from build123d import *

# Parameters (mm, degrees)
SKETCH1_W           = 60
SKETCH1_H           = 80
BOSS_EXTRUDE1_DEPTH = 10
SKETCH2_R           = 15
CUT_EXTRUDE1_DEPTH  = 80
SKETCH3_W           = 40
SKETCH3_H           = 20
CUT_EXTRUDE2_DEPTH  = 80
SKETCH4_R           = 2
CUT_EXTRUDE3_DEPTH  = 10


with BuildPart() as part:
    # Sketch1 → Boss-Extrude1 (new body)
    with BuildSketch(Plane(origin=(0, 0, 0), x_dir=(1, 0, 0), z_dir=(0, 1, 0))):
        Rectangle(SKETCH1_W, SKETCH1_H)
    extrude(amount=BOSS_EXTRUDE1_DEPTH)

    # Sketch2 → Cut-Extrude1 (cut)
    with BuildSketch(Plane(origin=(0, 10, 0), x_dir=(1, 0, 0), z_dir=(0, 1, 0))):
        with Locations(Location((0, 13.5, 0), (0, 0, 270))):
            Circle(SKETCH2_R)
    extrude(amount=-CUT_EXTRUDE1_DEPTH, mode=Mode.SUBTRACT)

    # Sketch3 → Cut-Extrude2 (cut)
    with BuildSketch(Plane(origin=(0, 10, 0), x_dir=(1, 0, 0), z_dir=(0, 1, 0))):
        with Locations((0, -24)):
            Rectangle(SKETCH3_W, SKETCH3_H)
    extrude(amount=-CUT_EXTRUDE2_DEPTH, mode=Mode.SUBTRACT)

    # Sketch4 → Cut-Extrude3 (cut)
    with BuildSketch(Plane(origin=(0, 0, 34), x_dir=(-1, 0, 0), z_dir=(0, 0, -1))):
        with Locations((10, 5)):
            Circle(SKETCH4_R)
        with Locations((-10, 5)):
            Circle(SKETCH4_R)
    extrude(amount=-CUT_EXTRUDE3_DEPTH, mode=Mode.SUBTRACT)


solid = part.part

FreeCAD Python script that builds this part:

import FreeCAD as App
import Part
import Sketcher

V = App.Vector


def add_polygon(sketch, points):
    """Adds a closed chain of lines whose ends are joined by coincident constraints."""
    first, n = sketch.GeometryCount, len(points)
    for a, b in zip(points, points[1:] + points[:1]):
        sketch.addGeometry(Part.LineSegment(App.Vector(*a, 0), App.Vector(*b, 0)), False)
    for i in range(n):
        sketch.addConstraint(Sketcher.Constraint("Coincident", first + i, 2, first + (i + 1) % n, 1))

doc = App.newDocument("Part")
body = doc.addObject("PartDesign::Body", "Body")

sketch1 = body.newObject("Sketcher::SketchObject", "Sketch")
sketch1.AttachmentSupport = (doc.getObject("XZ_Plane"), [""])
sketch1.MapMode = "FlatFace"
add_polygon(sketch1, [(-30, -40), (-30, 40), (30, 40), (30, -40)])
sketch1.addConstraint(Sketcher.Constraint("Vertical", 0))
sketch1.addConstraint(Sketcher.Constraint("Horizontal", 1))
sketch1.addConstraint(Sketcher.Constraint("Vertical", 2))
sketch1.addConstraint(Sketcher.Constraint("Horizontal", 3))
sketch1.addConstraint(Sketcher.Constraint("Symmetric", 0, 2, 2, 2, -1, 1))
sketch1.addConstraint(Sketcher.Constraint("DistanceX", 1, 1, 1, 2, 60.0))
sketch1.addConstraint(Sketcher.Constraint("DistanceY", 0, 1, 0, 2, 80.0))
pad1 = body.newObject("PartDesign::Pad", "Pad")
pad1.Profile = sketch1
pad1.Length = 10
pad1.Reversed = True

sketch2 = body.newObject("Sketcher::SketchObject", "Sketch001")
sketch2.AttachmentSupport = (doc.getObject("XZ_Plane"), [""])
sketch2.MapMode = "FlatFace"
sketch2.AttachmentOffset = App.Placement(V(0, 0, -10), App.Rotation())
sketch2.addGeometry(Part.Circle(V(0, -14, 0), V(0, 0, 1), 15), False)
sketch2.addConstraint(Sketcher.Constraint("PointOnObject", 0, 3, -2))
sketch2.addConstraint(Sketcher.Constraint("Diameter", 0, 30.0))
sketch2.addConstraint(Sketcher.Constraint("DistanceY", 0, 3, -1, 1, 13.5))
pocket1 = body.newObject("PartDesign::Pocket", "Pocket")
pocket1.Profile = sketch2
pocket1.Length = 80
pocket1.Reversed = True

sketch3 = body.newObject("Sketcher::SketchObject", "Sketch002")
sketch3.AttachmentSupport = (doc.getObject("XZ_Plane"), [""])
sketch3.MapMode = "FlatFace"
sketch3.AttachmentOffset = App.Placement(V(0, 0, -10), App.Rotation())
add_polygon(sketch3, [(-20, 14), (-20, 34), (20, 34), (20, 14)])
sketch3.addConstraint(Sketcher.Constraint("Vertical", 0))
sketch3.addConstraint(Sketcher.Constraint("Horizontal", 1))
sketch3.addConstraint(Sketcher.Constraint("Vertical", 2))
sketch3.addConstraint(Sketcher.Constraint("Horizontal", 3))
sketch3.addConstraint(Sketcher.Constraint("DistanceX", 1, 1, 1, 2, 40.0))
sketch3.addConstraint(Sketcher.Constraint("DistanceY", 0, 1, 0, 2, 20.0))
sketch3.addConstraint(Sketcher.Constraint("DistanceX", 0, 2, -1, 1, 20.0))
sketch3.addConstraint(Sketcher.Constraint("DistanceY", -1, 1, 0, 2, 34.0))
pocket2 = body.newObject("PartDesign::Pocket", "Pocket001")
pocket2.Profile = sketch3
pocket2.Length = 80
pocket2.Reversed = True

sketch4 = body.newObject("Sketcher::SketchObject", "Sketch003")
sketch4.AttachmentSupport = (doc.getObject("XY_Plane"), [""])
sketch4.MapMode = "FlatFace"
sketch4.AttachmentOffset = App.Placement(V(0, 0, 34), App.Rotation())
sketch4.addGeometry(Part.Circle(V(-10, 5, 0), V(0, 0, 1), 2), False)
sketch4.addGeometry(Part.Circle(V(10, 5, 0), V(0, 0, 1), 2), False)
sketch4.addConstraint(Sketcher.Constraint("Equal", 0, 1))
sketch4.addConstraint(Sketcher.Constraint("Symmetric", 0, 3, 1, 3, -2))
sketch4.addConstraint(Sketcher.Constraint("Diameter", 0, 4.0))
sketch4.addConstraint(Sketcher.Constraint("DistanceX", 0, 3, -1, 1, 10.0))
sketch4.addConstraint(Sketcher.Constraint("DistanceY", -1, 1, 0, 3, 5.0))
pocket3 = body.newObject("PartDesign::Pocket", "Pocket002")
pocket3.Profile = sketch4
pocket3.Length = 10
pocket3.Reversed = True

doc.recompute()
